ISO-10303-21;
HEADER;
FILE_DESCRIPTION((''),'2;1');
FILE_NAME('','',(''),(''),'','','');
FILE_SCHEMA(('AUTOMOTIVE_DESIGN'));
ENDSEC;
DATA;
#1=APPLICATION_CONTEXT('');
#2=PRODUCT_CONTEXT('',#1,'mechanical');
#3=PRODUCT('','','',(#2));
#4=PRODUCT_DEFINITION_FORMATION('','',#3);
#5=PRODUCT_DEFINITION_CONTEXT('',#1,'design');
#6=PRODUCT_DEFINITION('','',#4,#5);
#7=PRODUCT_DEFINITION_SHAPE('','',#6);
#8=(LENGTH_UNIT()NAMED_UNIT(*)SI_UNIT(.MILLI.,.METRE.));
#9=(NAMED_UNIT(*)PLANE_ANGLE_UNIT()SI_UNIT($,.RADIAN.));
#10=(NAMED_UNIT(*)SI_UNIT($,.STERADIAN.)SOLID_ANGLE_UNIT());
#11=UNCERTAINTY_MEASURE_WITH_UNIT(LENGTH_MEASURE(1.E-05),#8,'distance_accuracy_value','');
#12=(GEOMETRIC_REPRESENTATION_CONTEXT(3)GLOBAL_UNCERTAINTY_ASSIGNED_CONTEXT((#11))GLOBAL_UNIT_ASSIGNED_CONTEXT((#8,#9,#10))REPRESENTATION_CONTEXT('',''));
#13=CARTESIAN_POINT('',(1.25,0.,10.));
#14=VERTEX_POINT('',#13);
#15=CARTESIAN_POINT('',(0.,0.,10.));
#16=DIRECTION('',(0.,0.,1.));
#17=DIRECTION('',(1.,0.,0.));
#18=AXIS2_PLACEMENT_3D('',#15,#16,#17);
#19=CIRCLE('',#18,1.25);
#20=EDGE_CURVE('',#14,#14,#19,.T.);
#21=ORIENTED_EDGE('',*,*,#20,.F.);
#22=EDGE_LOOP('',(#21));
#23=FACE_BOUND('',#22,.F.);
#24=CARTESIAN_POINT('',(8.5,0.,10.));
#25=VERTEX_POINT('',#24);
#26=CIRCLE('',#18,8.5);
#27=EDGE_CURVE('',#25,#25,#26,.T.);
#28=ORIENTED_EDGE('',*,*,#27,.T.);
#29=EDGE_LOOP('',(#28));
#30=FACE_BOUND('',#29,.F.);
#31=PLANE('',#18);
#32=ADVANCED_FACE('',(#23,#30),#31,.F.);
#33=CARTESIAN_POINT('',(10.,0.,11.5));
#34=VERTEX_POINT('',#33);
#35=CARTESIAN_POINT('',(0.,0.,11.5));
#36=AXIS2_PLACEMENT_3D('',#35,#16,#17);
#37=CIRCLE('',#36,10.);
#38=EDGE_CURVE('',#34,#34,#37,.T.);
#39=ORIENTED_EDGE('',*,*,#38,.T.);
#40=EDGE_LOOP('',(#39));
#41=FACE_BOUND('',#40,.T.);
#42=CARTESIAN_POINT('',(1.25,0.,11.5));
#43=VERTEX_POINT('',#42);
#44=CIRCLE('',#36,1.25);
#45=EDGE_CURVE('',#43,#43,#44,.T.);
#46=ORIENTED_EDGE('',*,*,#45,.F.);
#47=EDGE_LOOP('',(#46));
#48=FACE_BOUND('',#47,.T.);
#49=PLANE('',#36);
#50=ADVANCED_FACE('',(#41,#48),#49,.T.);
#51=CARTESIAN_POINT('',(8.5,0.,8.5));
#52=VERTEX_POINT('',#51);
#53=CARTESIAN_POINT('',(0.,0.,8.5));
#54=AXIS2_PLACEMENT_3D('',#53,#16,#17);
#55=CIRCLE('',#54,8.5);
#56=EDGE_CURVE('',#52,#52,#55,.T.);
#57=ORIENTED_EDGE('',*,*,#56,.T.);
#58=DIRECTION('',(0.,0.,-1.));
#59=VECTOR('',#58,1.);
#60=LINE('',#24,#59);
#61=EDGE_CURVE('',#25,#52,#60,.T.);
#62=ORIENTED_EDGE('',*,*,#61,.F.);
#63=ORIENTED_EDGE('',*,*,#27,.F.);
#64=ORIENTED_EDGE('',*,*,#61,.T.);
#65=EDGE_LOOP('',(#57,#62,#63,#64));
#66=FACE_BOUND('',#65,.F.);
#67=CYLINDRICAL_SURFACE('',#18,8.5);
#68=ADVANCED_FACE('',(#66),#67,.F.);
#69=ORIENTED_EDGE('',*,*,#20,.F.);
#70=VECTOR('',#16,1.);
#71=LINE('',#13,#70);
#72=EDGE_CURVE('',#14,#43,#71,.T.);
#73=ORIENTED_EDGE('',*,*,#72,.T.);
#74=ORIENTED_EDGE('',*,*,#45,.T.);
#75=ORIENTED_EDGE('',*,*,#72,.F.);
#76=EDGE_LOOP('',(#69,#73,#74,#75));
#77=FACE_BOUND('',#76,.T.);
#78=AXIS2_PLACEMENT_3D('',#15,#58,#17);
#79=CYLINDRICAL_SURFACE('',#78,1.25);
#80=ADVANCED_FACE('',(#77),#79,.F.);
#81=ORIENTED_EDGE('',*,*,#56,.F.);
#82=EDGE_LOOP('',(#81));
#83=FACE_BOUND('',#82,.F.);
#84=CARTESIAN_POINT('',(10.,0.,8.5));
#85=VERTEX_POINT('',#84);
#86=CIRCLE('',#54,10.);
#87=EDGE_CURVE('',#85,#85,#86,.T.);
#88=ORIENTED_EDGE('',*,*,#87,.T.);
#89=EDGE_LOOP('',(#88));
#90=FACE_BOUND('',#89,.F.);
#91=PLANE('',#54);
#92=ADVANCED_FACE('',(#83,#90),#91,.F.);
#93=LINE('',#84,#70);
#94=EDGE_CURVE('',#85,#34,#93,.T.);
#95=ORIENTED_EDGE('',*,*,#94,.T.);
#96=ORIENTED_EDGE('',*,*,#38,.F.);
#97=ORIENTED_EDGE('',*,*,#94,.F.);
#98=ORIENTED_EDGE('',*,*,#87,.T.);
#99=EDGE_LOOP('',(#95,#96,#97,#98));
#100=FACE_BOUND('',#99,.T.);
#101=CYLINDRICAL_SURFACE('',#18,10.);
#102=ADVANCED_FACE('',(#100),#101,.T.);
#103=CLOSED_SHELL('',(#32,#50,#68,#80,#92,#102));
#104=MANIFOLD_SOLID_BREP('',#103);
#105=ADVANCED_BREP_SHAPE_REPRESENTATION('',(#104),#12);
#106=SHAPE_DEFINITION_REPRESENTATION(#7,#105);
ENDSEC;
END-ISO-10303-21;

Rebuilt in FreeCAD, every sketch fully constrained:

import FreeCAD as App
import Part
import Sketcher

V = App.Vector

doc = App.newDocument("Part")
params = doc.addObject("Spreadsheet::Sheet", "Params")
for row, (alias, value) in enumerate([
    ("sketch1_diameter", "20 mm"),
    ("sketch1_diameter2", "2.5 mm"),
    ("pad1_length", "1.5 mm"),
    ("sketch2_diameter", "20 mm"),
    ("sketch2_diameter2", "17 mm"),
    ("pad2_length", "1.5 mm"),
], start=1):
    params.set(f"A{row}", alias)
    params.set(f"B{row}", "=" + value)
    params.setAlias(f"B{row}", alias)

body = doc.addObject("PartDesign::Body", "Body")

sketch1 = body.newObject("Sketcher::SketchObject", "Sketch")
sketch1.AttachmentSupport = (doc.getObject("XY_Plane"), [""])
sketch1.MapMode = "FlatFace"
sketch1.AttachmentOffset = App.Placement(V(0, 0, 10), App.Rotation())
sketch1.addGeometry([
    Part.Circle(V(0, 0, 0), V(0, 0, 1), 10),
    Part.Circle(V(0, 0, 0), V(0, 0, 1), 1.2),
], False)
sketch1.addConstraint([
    Sketcher.Constraint("Coincident", 0, 3, -1, 1),
    Sketcher.Constraint("Coincident", 1, 3, -1, 1),
    Sketcher.Constraint("Diameter", 0, 20.0),
    Sketcher.Constraint("Diameter", 1, 2.5),
])
sketch1.setExpression("Constraints[2]", "Params.sketch1_diameter")
sketch1.setExpression("Constraints[3]", "Params.sketch1_diameter2")
pad1 = body.newObject("PartDesign::Pad", "Pad")
pad1.Profile = sketch1
pad1.setExpression("Length", "Params.pad1_length")

sketch2 = body.newObject("Sketcher::SketchObject", "Sketch001")
sketch2.AttachmentSupport = (doc.getObject("XY_Plane"), [""])
sketch2.MapMode = "FlatFace"
sketch2.AttachmentOffset = App.Placement(V(0, 0, 10), App.Rotation())
sketch2.addGeometry([
    Part.Circle(V(0, 0, 0), V(0, 0, 1), 10),
    Part.Circle(V(0, 0, 0), V(0, 0, 1), 8),
], False)
sketch2.addConstraint([
    Sketcher.Constraint("Coincident", 0, 3, -1, 1),
    Sketcher.Constraint("Coincident", 1, 3, -1, 1),
    Sketcher.Constraint("Diameter", 0, 20.0),
    Sketcher.Constraint("Diameter", 1, 17.0),
])
sketch2.setExpression("Constraints[2]", "Params.sketch2_diameter")
sketch2.setExpression("Constraints[3]", "Params.sketch2_diameter2")
pad2 = body.newObject("PartDesign::Pad", "Pad001")
pad2.Profile = sketch2
pad2.setExpression("Length", "Params.pad2_length")
pad2.Reversed = True

doc.recompute()
